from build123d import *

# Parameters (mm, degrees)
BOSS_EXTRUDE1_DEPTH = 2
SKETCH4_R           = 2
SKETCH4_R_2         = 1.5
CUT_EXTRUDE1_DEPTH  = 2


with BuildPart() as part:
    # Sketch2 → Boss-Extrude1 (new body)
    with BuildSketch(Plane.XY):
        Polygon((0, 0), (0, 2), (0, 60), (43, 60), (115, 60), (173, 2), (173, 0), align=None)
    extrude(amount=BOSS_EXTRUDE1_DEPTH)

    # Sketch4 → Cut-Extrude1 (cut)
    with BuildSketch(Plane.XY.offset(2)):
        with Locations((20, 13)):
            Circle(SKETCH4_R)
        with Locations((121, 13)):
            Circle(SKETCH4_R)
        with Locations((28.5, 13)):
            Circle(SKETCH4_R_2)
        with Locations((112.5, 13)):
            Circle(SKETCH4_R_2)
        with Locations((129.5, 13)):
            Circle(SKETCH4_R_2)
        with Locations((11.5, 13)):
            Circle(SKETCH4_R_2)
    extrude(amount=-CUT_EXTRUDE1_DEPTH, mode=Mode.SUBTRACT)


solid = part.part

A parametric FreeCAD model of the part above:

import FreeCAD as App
import Part
import Sketcher

V = App.Vector


def add_polygon(sketch, points):
    """Adds a closed chain of lines whose ends are joined by coincident constraints."""
    first, n = sketch.GeometryCount, len(points)
    for a, b in zip(points, points[1:] + points[:1]):
        sketch.addGeometry(Part.LineSegment(App.Vector(*a, 0), App.Vector(*b, 0)), False)
    for i in range(n):
        sketch.addConstraint(Sketcher.Constraint("Coincident", first + i, 2, first + (i + 1) % n, 1))

doc = App.newDocument("Part")
params = doc.addObject("Spreadsheet::Sheet", "Params")
for row, (alias, value) in enumerate([
    ("sketch1_width", "173 mm"),
    ("sketch1_width2", "115 mm"),
    ("sketch1_height", "60 mm"),
    ("sketch1_height2", "2 mm"),
    ("pad1_length", "2 mm"),
    ("sketch2_diameter", "4 mm"),
    ("sketch2_diameter2", "3 mm"),
    ("pocket1_length", "2 mm"),
], start=1):
    params.set(f"A{row}", alias)
    params.set(f"B{row}", "=" + value)
    params.setAlias(f"B{row}", alias)

body = doc.addObject("PartDesign::Body", "Body")

# Sketch on XY plane
sketch1 = body.newObject("Sketcher::SketchObject", "Sketch")
sketch1.AttachmentSupport = (doc.getObject("XY_Plane"), [""])
sketch1.MapMode = "FlatFace"
add_polygon(sketch1, [(0, 60), (0, 0), (173, 0), (173, 2), (115, 60)])  # lines 0-4
sketch1.addConstraint([
    Sketcher.Constraint("Vertical", 0),
    Sketcher.Constraint("Horizontal", 1),
    Sketcher.Constraint("Vertical", 2),
    Sketcher.Constraint("Horizontal", 4),
    Sketcher.Constraint("Coincident", 0, 2, -1, 1),
    Sketcher.Constraint("DistanceX", 1, 1, 1, 2, 173.0),
    Sketcher.Constraint("DistanceX", 4, 2, 4, 1, 115.0),
    Sketcher.Constraint("DistanceY", 0, 2, 0, 1, 60.0),
    Sketcher.Constraint("DistanceY", 2, 1, 2, 2, 2.0),
])
sketch1.setExpression("Constraints[10]", "Params.sketch1_width")
sketch1.setExpression("Constraints[11]", "Params.sketch1_width2")
sketch1.setExpression("Constraints[12]", "Params.sketch1_height")
sketch1.setExpression("Constraints[13]", "Params.sketch1_height2")
pad1 = body.newObject("PartDesign::Pad", "Pad")
pad1.Profile = sketch1
pad1.setExpression("Length", "Params.pad1_length")

# Sketch on XY plane
sketch2 = body.newObject("Sketcher::SketchObject", "Sketch001")
sketch2.AttachmentSupport = (doc.getObject("XY_Plane"), [""])
sketch2.MapMode = "FlatFace"
sketch2.AttachmentOffset = App.Placement(V(0, 0, 2), App.Rotation())
sketch2.addGeometry([
    Part.Circle(V(20, 13, 0), V(0, 0, 1), 2),  # 0
    Part.Circle(V(121, 13, 0), V(0, 0, 1), 2),  # 1
    Part.Circle(V(28.5, 13, 0), V(0, 0, 1), 1.5),  # 2
    Part.Circle(V(112.5, 13, 0), V(0, 0, 1), 1.5),  # 3
    Part.Circle(V(129.5, 13, 0), V(0, 0, 1), 1.5),  # 4
    Part.Circle(V(11.5, 13, 0), V(0, 0, 1), 1.5),  # 5
], False)
sketch2.addConstraint([
    Sketcher.Constraint("Equal", 0, 1),
    Sketcher.Constraint("Equal", 2, 3),
    Sketcher.Constraint("Equal", 3, 4),
    Sketcher.Constraint("Equal", 4, 5),
    Sketcher.Constraint("Horizontal", 0, 3, 1, 3),
    Sketcher.Constraint("Horizontal", 1, 3, 2, 3),
    Sketcher.Constraint("Horizontal", 2, 3, 3, 3),
    Sketcher.Constraint("Horizontal", 3, 3, 4, 3),
    Sketcher.Constraint("Horizontal", 4, 3, 5, 3),
    Sketcher.Constraint("Diameter", 0, 4.0),
    Sketcher.Constraint("Diameter", 2, 3.0),
    Sketcher.Constraint("DistanceX", -1, 1, 0, 3, 20.0),
    Sketcher.Constraint("DistanceY", -1, 1, 0, 3, 13.0),
    Sketcher.Constraint("DistanceX", -1, 1, 1, 3, 121.0),
    Sketcher.Constraint("DistanceX", 2, 3, 3, 3, 84.0),
    Sketcher.Constraint("DistanceX", 3, 3, 4, 3, 17.0),
    Sketcher.Constraint("DistanceX", 5, 3, 2, 3, 17.0),
    Sketcher.Constraint("DistanceX", -1, 1, 2, 3, 28.5),
])
sketch2.setExpression("Constraints[9]", "Params.sketch2_diameter")
sketch2.setExpression("Constraints[10]", "Params.sketch2_diameter2")
pocket1 = body.newObject("PartDesign::Pocket", "Pocket")
pocket1.Profile = sketch2
pocket1.setExpression("Length", "Params.pocket1_length")

doc.recompute()
